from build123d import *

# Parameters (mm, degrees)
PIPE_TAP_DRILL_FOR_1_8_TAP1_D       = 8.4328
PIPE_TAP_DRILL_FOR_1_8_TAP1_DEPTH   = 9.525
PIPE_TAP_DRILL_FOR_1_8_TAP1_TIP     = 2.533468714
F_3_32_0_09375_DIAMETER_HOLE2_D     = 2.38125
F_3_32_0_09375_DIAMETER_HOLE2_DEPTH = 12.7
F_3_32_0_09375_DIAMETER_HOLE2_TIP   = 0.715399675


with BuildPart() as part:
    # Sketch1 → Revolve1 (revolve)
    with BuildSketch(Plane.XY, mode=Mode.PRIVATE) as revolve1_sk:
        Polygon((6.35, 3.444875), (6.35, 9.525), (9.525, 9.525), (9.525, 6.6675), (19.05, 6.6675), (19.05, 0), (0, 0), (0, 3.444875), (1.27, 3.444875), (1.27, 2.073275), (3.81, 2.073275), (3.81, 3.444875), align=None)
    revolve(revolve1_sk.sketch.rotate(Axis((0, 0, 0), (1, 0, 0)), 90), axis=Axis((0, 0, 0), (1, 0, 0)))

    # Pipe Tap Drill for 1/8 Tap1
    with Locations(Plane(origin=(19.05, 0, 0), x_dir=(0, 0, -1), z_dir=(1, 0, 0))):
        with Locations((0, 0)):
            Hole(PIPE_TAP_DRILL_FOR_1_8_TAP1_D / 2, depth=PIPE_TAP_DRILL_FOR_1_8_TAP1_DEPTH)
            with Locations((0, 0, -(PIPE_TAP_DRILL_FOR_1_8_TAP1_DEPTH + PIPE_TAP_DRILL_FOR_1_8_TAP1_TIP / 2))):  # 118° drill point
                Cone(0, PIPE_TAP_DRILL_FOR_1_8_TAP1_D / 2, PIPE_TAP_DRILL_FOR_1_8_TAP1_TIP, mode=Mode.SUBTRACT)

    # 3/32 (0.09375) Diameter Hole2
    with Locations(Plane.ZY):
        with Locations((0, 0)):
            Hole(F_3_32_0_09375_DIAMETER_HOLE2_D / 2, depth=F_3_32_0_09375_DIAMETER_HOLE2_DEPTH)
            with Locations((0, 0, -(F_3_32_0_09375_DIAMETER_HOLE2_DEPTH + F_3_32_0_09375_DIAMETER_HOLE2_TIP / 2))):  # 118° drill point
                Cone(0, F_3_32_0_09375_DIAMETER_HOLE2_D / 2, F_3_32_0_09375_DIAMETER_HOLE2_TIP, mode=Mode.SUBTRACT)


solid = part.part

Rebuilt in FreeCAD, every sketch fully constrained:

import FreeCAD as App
import Part
import Sketcher
from FreeCAD import Vector
Q = App.Units.Quantity


def add_polygon(sketch, points):
    """Adds a closed chain of lines whose ends are joined by coincident constraints."""
    first, n = sketch.GeometryCount, len(points)
    for a, b in zip(points, points[1:] + points[:1]):
        sketch.addGeometry(Part.LineSegment(App.Vector(*a, 0), App.Vector(*b, 0)), False)
    for i in range(n):
        sketch.addConstraint(Sketcher.Constraint("Coincident", first + i, 2, first + (i + 1) % n, 1))

doc = App.newDocument("Part")
body = doc.addObject("PartDesign::Body", "Body")

# Sketch on XY plane
sketch1 = doc.addObject("Sketcher::SketchObject", "Sketch")
body.addObject(sketch1)
sketch1.AttachmentSupport = (doc.XY_Plane, [""])
sketch1.MapMode = "FlatFace"
add_polygon(sketch1, [(6.3, 9.5), (6.3, 3.4), (3.8, 3.4), (3.8, 2.1), (1.3, 2.1), (1.3, 3.4), (0, 3.4), (0, 0), (19.1, 0), (19.1, 6.7), (9.5, 6.7), (9.5, 9.5)])  # lines 0-11
sketch1.addConstraint([
    Sketcher.Constraint("Vertical", 0),
    Sketcher.Constraint("Horizontal", 1),
    Sketcher.Constraint("Vertical", 2),
    Sketcher.Constraint("Horizontal", 3),
    Sketcher.Constraint("Vertical", 4),
    Sketcher.Constraint("Horizontal", 5),
    Sketcher.Constraint("Vertical", 6),
    Sketcher.Constraint("Horizontal", 7),
    Sketcher.Constraint("Vertical", 8),
    Sketcher.Constraint("Horizontal", 9),
    Sketcher.Constraint("Vertical", 10),
    Sketcher.Constraint("Horizontal", 11),
    Sketcher.Constraint("Coincident", 6, 2, -1, 1),
    Sketcher.Constraint("Horizontal", 1, 2, 4, 2),
    Sketcher.Constraint("Equal", 1, 3),
    Sketcher.Constraint("DistanceX", 1, 2, 1, 1, Q("0.1 in")),
    Sketcher.Constraint("DistanceX", 5, 2, 5, 1, Q("0.05 in")),
    Sketcher.Constraint("DistanceX", 7, 1, 7, 2, Q("0.75 in")),
    Sketcher.Constraint("DistanceX", 9, 2, 9, 1, Q("0.375 in")),
    Sketcher.Constraint("DistanceY", 2, 2, 2, 1, Q("0.054 in")),
    Sketcher.Constraint("DistanceY", 8, 1, 8, 2, Q("0.2625 in")),
    Sketcher.Constraint("DistanceY", 10, 1, 10, 2, Q("0.1125 in")),
    Sketcher.Constraint("DistanceY", 0, 2, 0, 1, 6.080125),
])
revolution = doc.addObject("PartDesign::Revolution", "Revolution")
body.addObject(revolution)
revolution.Profile = sketch1
revolution.ReferenceAxis = (sketch1, ["H_Axis"])
revolution.Angle = 360

# Sketch on YZ plane
sketch2 = doc.addObject("Sketcher::SketchObject", "Sketch001")
body.addObject(sketch2)
sketch2.AttachmentSupport = (doc.YZ_Plane, [""])
sketch2.MapMode = "FlatFace"
sketch2.AttachmentOffset = App.Placement(Vector(0, 0, 0.75 * 25.4), App.Rotation())
sketch2.addGeometry(Part.Circle(Vector(0, 0, 0), Vector(0, 0, 1), 4.2), False)
sketch2.addConstraint([
    Sketcher.Constraint("Coincident", 0, 3, -1, 1),
    Sketcher.Constraint("Diameter", 0, Q("0.332 in")),
])
doc.recompute()
hole = doc.addObject("PartDesign::Hole", "Hole")
body.addObject(hole)
hole.Profile = sketch2
hole.ThreadType = "None"
hole.Diameter = Q("0.332 in")
hole.DepthType = "Dimension"
hole.Depth = Q("0.375 in")
hole.DrillPoint = "Angled"
hole.DrillPointAngle = 118

# Sketch on YZ plane
sketch3 = doc.addObject("Sketcher::SketchObject", "Sketch002")
body.addObject(sketch3)
sketch3.AttachmentSupport = (doc.YZ_Plane, [""])
sketch3.MapMode = "FlatFace"
sketch3.addGeometry(Part.Circle(Vector(0, 0, 0), Vector(0, 0, 1), 1.2), False)
sketch3.addConstraint([
    Sketcher.Constraint("Coincident", 0, 3, -1, 1),
    Sketcher.Constraint("Diameter", 0, Q("0.09375 in")),
])
doc.recompute()
hole2 = doc.addObject("PartDesign::Hole", "Hole001")
body.addObject(hole2)
hole2.Profile = sketch3
hole2.ThreadType = "None"
hole2.Diameter = Q("0.09375 in")
hole2.DepthType = "Dimension"
hole2.Depth = Q("0.5 in")
hole2.DrillPoint = "Angled"
hole2.DrillPointAngle = 118
hole2.Reversed = True

doc.recompute()
